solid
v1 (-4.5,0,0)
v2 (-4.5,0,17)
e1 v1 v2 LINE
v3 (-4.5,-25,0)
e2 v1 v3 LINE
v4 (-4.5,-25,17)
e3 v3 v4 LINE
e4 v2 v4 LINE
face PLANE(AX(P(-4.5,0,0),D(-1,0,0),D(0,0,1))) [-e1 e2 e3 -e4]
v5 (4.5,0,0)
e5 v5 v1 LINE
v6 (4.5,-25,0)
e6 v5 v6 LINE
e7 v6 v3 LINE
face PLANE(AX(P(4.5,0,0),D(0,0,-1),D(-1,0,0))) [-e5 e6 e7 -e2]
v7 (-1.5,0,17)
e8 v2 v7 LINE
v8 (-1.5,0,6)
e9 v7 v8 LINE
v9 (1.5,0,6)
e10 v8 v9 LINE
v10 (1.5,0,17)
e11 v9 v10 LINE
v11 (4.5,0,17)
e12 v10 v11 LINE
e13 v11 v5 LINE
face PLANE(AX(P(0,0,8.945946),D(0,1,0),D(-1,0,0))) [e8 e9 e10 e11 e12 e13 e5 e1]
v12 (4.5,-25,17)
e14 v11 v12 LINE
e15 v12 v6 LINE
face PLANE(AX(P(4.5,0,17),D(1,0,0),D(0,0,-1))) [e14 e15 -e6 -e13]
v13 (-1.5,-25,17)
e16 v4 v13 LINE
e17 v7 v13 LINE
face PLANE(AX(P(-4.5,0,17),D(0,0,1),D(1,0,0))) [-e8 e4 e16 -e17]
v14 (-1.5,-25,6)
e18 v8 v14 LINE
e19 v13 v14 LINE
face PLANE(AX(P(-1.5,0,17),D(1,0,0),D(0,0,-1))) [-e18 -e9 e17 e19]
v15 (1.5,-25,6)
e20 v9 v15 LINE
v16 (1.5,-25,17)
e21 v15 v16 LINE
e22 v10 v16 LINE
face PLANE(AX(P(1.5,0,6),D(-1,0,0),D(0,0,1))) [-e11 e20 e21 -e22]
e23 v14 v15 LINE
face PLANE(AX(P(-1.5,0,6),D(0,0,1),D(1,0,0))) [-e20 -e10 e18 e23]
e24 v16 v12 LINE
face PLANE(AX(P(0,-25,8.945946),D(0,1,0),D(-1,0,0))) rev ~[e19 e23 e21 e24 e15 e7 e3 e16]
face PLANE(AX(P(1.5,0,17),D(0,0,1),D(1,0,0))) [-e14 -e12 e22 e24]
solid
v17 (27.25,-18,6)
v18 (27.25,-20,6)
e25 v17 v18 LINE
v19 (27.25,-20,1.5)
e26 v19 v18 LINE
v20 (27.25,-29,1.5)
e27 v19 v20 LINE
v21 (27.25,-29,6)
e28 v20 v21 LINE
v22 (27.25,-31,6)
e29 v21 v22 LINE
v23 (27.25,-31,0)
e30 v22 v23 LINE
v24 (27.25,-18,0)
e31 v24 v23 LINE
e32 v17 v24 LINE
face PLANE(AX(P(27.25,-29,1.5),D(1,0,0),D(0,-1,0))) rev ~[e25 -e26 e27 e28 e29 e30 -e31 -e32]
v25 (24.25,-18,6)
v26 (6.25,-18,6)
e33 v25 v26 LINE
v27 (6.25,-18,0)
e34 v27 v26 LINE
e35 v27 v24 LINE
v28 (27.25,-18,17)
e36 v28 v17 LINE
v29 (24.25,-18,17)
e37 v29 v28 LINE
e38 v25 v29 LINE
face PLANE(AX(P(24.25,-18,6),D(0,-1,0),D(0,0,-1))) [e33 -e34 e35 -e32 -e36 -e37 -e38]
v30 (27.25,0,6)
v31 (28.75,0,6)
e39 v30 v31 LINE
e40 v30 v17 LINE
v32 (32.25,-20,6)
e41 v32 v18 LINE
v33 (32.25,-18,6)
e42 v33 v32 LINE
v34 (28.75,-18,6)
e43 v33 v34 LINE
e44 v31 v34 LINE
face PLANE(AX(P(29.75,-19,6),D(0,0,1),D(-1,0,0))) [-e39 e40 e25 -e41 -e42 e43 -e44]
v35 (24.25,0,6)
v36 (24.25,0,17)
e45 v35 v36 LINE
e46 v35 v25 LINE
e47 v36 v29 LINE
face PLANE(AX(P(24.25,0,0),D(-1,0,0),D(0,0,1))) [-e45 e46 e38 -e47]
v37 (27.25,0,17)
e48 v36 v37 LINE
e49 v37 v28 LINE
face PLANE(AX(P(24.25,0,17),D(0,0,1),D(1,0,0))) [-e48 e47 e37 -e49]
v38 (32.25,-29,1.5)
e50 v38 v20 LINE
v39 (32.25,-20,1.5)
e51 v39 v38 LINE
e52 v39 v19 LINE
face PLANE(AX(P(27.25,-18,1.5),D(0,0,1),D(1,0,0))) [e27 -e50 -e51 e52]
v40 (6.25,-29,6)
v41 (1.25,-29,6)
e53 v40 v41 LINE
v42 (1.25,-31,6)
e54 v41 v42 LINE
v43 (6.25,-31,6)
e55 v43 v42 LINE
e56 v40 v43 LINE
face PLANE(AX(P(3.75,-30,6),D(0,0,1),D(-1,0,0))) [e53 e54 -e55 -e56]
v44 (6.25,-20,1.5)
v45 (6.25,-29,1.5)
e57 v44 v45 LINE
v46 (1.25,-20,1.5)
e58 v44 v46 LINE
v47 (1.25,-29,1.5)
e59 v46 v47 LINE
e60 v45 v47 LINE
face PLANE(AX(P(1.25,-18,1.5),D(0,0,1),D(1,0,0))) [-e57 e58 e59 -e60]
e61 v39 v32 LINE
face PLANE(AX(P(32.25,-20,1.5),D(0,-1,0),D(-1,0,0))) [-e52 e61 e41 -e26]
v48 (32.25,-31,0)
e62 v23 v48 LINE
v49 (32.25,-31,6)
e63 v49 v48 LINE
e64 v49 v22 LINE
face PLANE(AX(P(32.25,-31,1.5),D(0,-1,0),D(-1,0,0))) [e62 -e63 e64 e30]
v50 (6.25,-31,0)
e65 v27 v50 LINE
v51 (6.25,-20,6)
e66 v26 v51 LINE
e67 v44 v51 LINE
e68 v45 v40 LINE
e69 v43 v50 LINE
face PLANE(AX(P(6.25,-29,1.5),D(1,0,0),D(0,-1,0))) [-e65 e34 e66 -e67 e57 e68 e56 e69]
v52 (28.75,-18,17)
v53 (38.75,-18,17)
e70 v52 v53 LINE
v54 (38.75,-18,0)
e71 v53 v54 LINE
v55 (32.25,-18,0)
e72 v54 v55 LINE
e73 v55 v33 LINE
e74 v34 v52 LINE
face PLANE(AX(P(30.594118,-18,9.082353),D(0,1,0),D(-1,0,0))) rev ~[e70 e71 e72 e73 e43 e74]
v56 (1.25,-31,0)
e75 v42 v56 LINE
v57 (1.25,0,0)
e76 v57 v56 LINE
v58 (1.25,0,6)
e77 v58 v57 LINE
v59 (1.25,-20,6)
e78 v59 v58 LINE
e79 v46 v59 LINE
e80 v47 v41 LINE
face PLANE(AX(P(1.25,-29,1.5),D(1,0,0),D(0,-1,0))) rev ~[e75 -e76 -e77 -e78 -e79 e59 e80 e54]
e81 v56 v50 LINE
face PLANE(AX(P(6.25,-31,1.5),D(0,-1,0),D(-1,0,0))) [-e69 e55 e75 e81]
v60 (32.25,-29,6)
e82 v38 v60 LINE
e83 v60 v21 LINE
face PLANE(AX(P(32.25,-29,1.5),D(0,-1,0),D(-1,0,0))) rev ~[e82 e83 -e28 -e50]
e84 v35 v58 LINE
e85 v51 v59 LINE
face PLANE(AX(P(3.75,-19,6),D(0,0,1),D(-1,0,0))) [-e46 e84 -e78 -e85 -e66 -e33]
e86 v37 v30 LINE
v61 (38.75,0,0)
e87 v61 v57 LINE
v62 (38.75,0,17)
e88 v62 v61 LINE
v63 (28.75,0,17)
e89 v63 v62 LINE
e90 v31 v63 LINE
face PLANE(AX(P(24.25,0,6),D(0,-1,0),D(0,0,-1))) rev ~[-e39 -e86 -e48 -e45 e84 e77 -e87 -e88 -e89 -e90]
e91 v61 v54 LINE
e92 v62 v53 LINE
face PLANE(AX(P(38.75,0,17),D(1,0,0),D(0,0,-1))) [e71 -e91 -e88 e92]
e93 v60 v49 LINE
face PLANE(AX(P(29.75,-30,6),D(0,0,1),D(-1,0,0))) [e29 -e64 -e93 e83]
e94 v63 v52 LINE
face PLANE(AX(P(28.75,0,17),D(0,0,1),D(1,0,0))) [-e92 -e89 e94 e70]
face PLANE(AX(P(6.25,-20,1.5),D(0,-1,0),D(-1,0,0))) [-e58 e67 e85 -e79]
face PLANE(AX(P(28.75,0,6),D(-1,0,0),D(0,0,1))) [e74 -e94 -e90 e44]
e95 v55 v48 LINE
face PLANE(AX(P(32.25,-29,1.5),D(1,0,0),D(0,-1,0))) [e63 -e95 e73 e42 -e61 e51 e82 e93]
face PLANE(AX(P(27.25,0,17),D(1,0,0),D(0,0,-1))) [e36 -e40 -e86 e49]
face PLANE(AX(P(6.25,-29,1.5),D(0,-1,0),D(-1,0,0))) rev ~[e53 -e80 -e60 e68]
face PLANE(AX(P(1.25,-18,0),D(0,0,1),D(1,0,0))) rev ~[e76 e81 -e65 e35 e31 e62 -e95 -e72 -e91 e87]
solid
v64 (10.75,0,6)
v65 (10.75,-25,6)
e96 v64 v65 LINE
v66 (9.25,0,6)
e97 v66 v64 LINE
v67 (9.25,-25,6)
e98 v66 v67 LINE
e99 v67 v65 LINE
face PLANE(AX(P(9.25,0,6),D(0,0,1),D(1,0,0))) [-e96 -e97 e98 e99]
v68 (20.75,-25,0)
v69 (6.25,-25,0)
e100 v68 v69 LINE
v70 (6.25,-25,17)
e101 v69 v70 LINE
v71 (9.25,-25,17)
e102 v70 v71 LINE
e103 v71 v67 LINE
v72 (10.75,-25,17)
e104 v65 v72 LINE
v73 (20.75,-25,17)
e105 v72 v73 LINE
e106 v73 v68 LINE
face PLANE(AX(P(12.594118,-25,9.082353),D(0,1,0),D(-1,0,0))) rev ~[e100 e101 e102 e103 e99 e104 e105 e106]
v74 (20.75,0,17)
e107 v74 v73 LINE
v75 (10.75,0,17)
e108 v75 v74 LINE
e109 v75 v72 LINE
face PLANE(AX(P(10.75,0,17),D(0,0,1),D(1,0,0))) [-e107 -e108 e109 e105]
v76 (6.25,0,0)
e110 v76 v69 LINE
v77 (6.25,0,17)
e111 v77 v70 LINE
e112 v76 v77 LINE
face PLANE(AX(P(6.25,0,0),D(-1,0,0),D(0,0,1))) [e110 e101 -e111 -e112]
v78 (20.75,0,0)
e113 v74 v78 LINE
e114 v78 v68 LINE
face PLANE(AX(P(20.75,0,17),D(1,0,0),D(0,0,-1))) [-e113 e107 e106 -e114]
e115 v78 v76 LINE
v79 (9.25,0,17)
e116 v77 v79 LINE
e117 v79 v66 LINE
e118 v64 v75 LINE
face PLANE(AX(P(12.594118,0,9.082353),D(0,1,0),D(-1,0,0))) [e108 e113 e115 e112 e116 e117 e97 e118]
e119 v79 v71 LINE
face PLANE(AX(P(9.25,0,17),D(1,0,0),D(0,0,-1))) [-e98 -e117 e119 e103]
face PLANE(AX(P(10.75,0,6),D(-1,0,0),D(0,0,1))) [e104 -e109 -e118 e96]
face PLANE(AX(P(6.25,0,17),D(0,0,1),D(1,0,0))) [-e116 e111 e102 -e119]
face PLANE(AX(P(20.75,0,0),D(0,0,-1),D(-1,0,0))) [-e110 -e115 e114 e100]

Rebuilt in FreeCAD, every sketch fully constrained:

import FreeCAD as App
import Part
import Sketcher

V = App.Vector

doc = App.newDocument("Part")
body = doc.addObject("PartDesign::Body", "Body")

sketch1 = body.newObject("Sketcher::SketchObject", "Sketch")
sketch1.AttachmentSupport = (doc.getObject("XZ_Plane"), [""])
sketch1.MapMode = "FlatFace"
sketch1.addGeometry(Part.LineSegment(V(-1.5, 17, 0), V(-4.5, 17, 0)), False)
sketch1.addGeometry(Part.LineSegment(V(-4.5, 17, 0), V(-4.5, 0, 0)), False)
sketch1.addGeometry(Part.LineSegment(V(-4.5, 0, 0), V(4.5, 0, 0)), False)
sketch1.addGeometry(Part.LineSegment(V(4.5, 0, 0), V(4.5, 17, 0)), False)
sketch1.addGeometry(Part.LineSegment(V(4.5, 17, 0), V(1.5, 17, 0)), False)
sketch1.addGeometry(Part.LineSegment(V(1.5, 17, 0), V(1.5, 6, 0)), False)
sketch1.addGeometry(Part.LineSegment(V(1.5, 6, 0), V(-1.5, 6, 0)), False)
sketch1.addGeometry(Part.LineSegment(V(-1.5, 6, 0), V(-1.5, 17, 0)), False)
sketch1.addConstraint(Sketcher.Constraint("Coincident", 0, 2, 1, 1))
sketch1.addConstraint(Sketcher.Constraint("Coincident", 1, 2, 2, 1))
sketch1.addConstraint(Sketcher.Constraint("Coincident", 2, 2, 3, 1))
sketch1.addConstraint(Sketcher.Constraint("Coincident", 3, 2, 4, 1))
sketch1.addConstraint(Sketcher.Constraint("Coincident", 4, 2, 5, 1))
sketch1.addConstraint(Sketcher.Constraint("Coincident", 5, 2, 6, 1))
sketch1.addConstraint(Sketcher.Constraint("Coincident", 6, 2, 7, 1))
sketch1.addConstraint(Sketcher.Constraint("Coincident", 7, 2, 0, 1))
sketch1.addConstraint(Sketcher.Constraint("Horizontal", 0))
sketch1.addConstraint(Sketcher.Constraint("Vertical", 1))
sketch1.addConstraint(Sketcher.Constraint("Horizontal", 2))
sketch1.addConstraint(Sketcher.Constraint("Vertical", 3))
sketch1.addConstraint(Sketcher.Constraint("Horizontal", 4))
sketch1.addConstraint(Sketcher.Constraint("Vertical", 5))
sketch1.addConstraint(Sketcher.Constraint("Horizontal", 6))
sketch1.addConstraint(Sketcher.Constraint("Vertical", 7))
sketch1.addConstraint(Sketcher.Constraint("Symmetric", 1, 2, 2, 2, -1, 1))
sketch1.addConstraint(Sketcher.Constraint("Symmetric", 4, 2, 7, 2, -2))
sketch1.addConstraint(Sketcher.Constraint("Equal", 4, 6))
sketch1.addConstraint(Sketcher.Constraint("DistanceX", 0, 2, 0, 1, 3.0))
sketch1.addConstraint(Sketcher.Constraint("DistanceY", 1, 2, 1, 1, 17.0))
sketch1.addConstraint(Sketcher.Constraint("DistanceY", 5, 2, 5, 1, 11.0))
pad1 = body.newObject("PartDesign::Pad", "Pad")
pad1.Profile = sketch1
pad1.Length = 25
body2 = doc.addObject("PartDesign::Body", "Body001")

sketch2 = body2.newObject("Sketcher::SketchObject", "Sketch001")
sketch2.AttachmentSupport = (doc.getObject("XZ_Plane001"), [""])
sketch2.MapMode = "FlatFace"
sketch2.addGeometry(Part.LineSegment(V(9.2, 17, 0), V(6.2, 17, 0)), False)
sketch2.addGeometry(Part.LineSegment(V(6.2, 17, 0), V(6.2, 0, 0)), False)
sketch2.addGeometry(Part.LineSegment(V(6.2, 0, 0), V(20.8, 0, 0)), False)
sketch2.addGeometry(Part.LineSegment(V(20.8, 0, 0), V(20.8, 17, 0)), False)
sketch2.addGeometry(Part.LineSegment(V(20.8, 17, 0), V(10.8, 17, 0)), False)
sketch2.addGeometry(Part.LineSegment(V(10.8, 17, 0), V(10.8, 6, 0)), False)
sketch2.addGeometry(Part.LineSegment(V(10.8, 6, 0), V(9.2, 6, 0)), False)
sketch2.addGeometry(Part.LineSegment(V(9.2, 6, 0), V(9.2, 17, 0)), False)
sketch2.addConstraint(Sketcher.Constraint("Coincident", 0, 2, 1, 1))
sketch2.addConstraint(Sketcher.Constraint("Coincident", 1, 2, 2, 1))
sketch2.addConstraint(Sketcher.Constraint("Coincident", 2, 2, 3, 1))
sketch2.addConstraint(Sketcher.Constraint("Coincident", 3, 2, 4, 1))
sketch2.addConstraint(Sketcher.Constraint("Coincident", 4, 2, 5, 1))
sketch2.addConstraint(Sketcher.Constraint("Coincident", 5, 2, 6, 1))
sketch2.addConstraint(Sketcher.Constraint("Coincident", 6, 2, 7, 1))
sketch2.addConstraint(Sketcher.Constraint("Coincident", 7, 2, 0, 1))
sketch2.addConstraint(Sketcher.Constraint("Horizontal", 0))
sketch2.addConstraint(Sketcher.Constraint("Vertical", 1))
sketch2.addConstraint(Sketcher.Constraint("Horizontal", 2))
sketch2.addConstraint(Sketcher.Constraint("Vertical", 3))
sketch2.addConstraint(Sketcher.Constraint("Horizontal", 4))
sketch2.addConstraint(Sketcher.Constraint("Vertical", 5))
sketch2.addConstraint(Sketcher.Constraint("Horizontal", 6))
sketch2.addConstraint(Sketcher.Constraint("Vertical", 7))
sketch2.addConstraint(Sketcher.Constraint("PointOnObject", 1, 2, -1))
sketch2.addConstraint(Sketcher.Constraint("Horizontal", 0, 2, 3, 2))
sketch2.addConstraint(Sketcher.Constraint("DistanceX", 0, 2, 0, 1, 3.0))
sketch2.addConstraint(Sketcher.Constraint("DistanceX", 4, 2, 4, 1, 10.0))
sketch2.addConstraint(Sketcher.Constraint("DistanceY", 1, 2, 1, 1, 17.0))
sketch2.addConstraint(Sketcher.Constraint("DistanceY", 5, 2, 5, 1, 11.0))
sketch2.addConstraint(Sketcher.Constraint("DistanceX", 2, 1, 2, 2, 14.5))
sketch2.addConstraint(Sketcher.Constraint("DistanceX", -1, 1, 0, 2, 6.25))
pad2 = body2.newObject("PartDesign::Pad", "Pad001")
pad2.Profile = sketch2
pad2.Length = 25
body3 = doc.addObject("PartDesign::Body", "Body002")

sketch3 = body3.newObject("Sketcher::SketchObject", "Sketch002")
sketch3.AttachmentSupport = (doc.getObject("XZ_Plane002"), [""])
sketch3.MapMode = "FlatFace"
sketch3.addGeometry(Part.LineSegment(V(27.2, 17, 0), V(24.2, 17, 0)), False)
sketch3.addGeometry(Part.LineSegment(V(24.2, 17, 0), V(24.2, 0, 0)), False)
sketch3.addGeometry(Part.LineSegment(V(24.2, 0, 0), V(38.8, 0, 0)), False)
sketch3.addGeometry(Part.LineSegment(V(38.8, 0, 0), V(38.8, 17, 0)), False)
sketch3.addGeometry(Part.LineSegment(V(38.8, 17, 0), V(28.8, 17, 0)), False)
sketch3.addGeometry(Part.LineSegment(V(28.8, 17, 0), V(28.8, 6, 0)), False)
sketch3.addGeometry(Part.LineSegment(V(28.8, 6, 0), V(27.2, 6, 0)), False)
sketch3.addGeometry(Part.LineSegment(V(27.2, 6, 0), V(27.2, 17, 0)), False)
sketch3.addConstraint(Sketcher.Constraint("Coincident", 0, 2, 1, 1))
sketch3.addConstraint(Sketcher.Constraint("Coincident", 1, 2, 2, 1))
sketch3.addConstraint(Sketcher.Constraint("Coincident", 2, 2, 3, 1))
sketch3.addConstraint(Sketcher.Constraint("Coincident", 3, 2, 4, 1))
sketch3.addConstraint(Sketcher.Constraint("Coincident", 4, 2, 5, 1))
sketch3.addConstraint(Sketcher.Constraint("Coincident", 5, 2, 6, 1))
sketch3.addConstraint(Sketcher.Constraint("Coincident", 6, 2, 7, 1))
sketch3.addConstraint(Sketcher.Constraint("Coincident", 7, 2, 0, 1))
sketch3.addConstraint(Sketcher.Constraint("Horizontal", 0))
sketch3.addConstraint(Sketcher.Constraint("Vertical", 1))
sketch3.addConstraint(Sketcher.Constraint("Horizontal", 2))
sketch3.addConstraint(Sketcher.Constraint("Vertical", 3))
sketch3.addConstraint(Sketcher.Constraint("Horizontal", 4))
sketch3.addConstraint(Sketcher.Constraint("Vertical", 5))
sketch3.addConstraint(Sketcher.Constraint("Horizontal", 6))
sketch3.addConstraint(Sketcher.Constraint("Vertical", 7))
sketch3.addConstraint(Sketcher.Constraint("PointOnObject", 1, 2, -1))
sketch3.addConstraint(Sketcher.Constraint("Horizontal", 0, 2, 3, 2))
sketch3.addConstraint(Sketcher.Constraint("DistanceX", 0, 2, 0, 1, 3.0))
sketch3.addConstraint(Sketcher.Constraint("DistanceX", 4, 2, 4, 1, 10.0))
sketch3.addConstraint(Sketcher.Constraint("DistanceY", 1, 2, 1, 1, 17.0))
sketch3.addConstraint(Sketcher.Constraint("DistanceY", 5, 2, 5, 1, 11.0))
sketch3.addConstraint(Sketcher.Constraint("DistanceX", 2, 1, 2, 2, 14.5))
sketch3.addConstraint(Sketcher.Constraint("DistanceX", -1, 1, 0, 2, 24.25))
pad3 = body3.newObject("PartDesign::Pad", "Pad002")
pad3.Profile = sketch3
pad3.Length = 18

sketch4 = body3.newObject("Sketcher::SketchObject", "Sketch003")
sketch4.AttachmentSupport = (doc.getObject("XZ_Plane002"), [""])
sketch4.MapMode = "FlatFace"
sketch4.AttachmentOffset = App.Placement(V(0, 0, 18), App.Rotation())
sketch4.addGeometry(Part.LineSegment(V(27.2, 1.5, 0), V(27.2, 0, 0)), False)
sketch4.addGeometry(Part.LineSegment(V(27.2, 0, 0), V(32.2, 0, 0)), False)
sketch4.addGeometry(Part.LineSegment(V(32.2, 0, 0), V(32.2, 1.5, 0)), False)
sketch4.addGeometry(Part.LineSegment(V(32.2, 1.5, 0), V(27.2, 1.5, 0)), False)
sketch4.addConstraint(Sketcher.Constraint("Coincident", 0, 2, 1, 1))
sketch4.addConstraint(Sketcher.Constraint("Coincident", 1, 2, 2, 1))
sketch4.addConstraint(Sketcher.Constraint("Coincident", 2, 2, 3, 1))
sketch4.addConstraint(Sketcher.Constraint("Coincident", 3, 2, 0, 1))
sketch4.addConstraint(Sketcher.Constraint("Vertical", 0))
sketch4.addConstraint(Sketcher.Constraint("Horizontal", 1))
sketch4.addConstraint(Sketcher.Constraint("Vertical", 2))
sketch4.addConstraint(Sketcher.Constraint("Horizontal", 3))
sketch4.addConstraint(Sketcher.Constraint("PointOnObject", 0, 2, -1))
sketch4.addConstraint(Sketcher.Constraint("DistanceX", 1, 1, 1, 2, 5.0))
sketch4.addConstraint(Sketcher.Constraint("DistanceY", 0, 2, 0, 1, 1.5))
sketch4.addConstraint(Sketcher.Constraint("DistanceX", -1, 1, 0, 2, 27.25))
pad4 = body3.newObject("PartDesign::Pad", "Pad003")
pad4.Profile = sketch4
pad4.Length = 13

sketch5 = body3.newObject("Sketcher::SketchObject", "Sketch004")
sketch5.AttachmentSupport = (doc.getObject("XY_Plane002"), [""])
sketch5.MapMode = "FlatFace"
sketch5.AttachmentOffset = App.Placement(V(0, 0, 1.5), App.Rotation())
sketch5.addGeometry(Part.LineSegment(V(32.2, -31, 0), V(32.2, -29, 0)), False)
sketch5.addGeometry(Part.LineSegment(V(32.2, -29, 0), V(27.2, -29, 0)), False)
sketch5.addGeometry(Part.LineSegment(V(27.2, -29, 0), V(27.2, -31, 0)), False)
sketch5.addGeometry(Part.LineSegment(V(27.2, -31, 0), V(32.2, -31, 0)), False)
sketch5.addGeometry(Part.LineSegment(V(32.2, -20, 0), V(32.2, -18, 0)), False)
sketch5.addGeometry(Part.LineSegment(V(32.2, -18, 0), V(27.2, -18, 0)), False)
sketch5.addGeometry(Part.LineSegment(V(27.2, -18, 0), V(27.2, -20, 0)), False)
sketch5.addGeometry(Part.LineSegment(V(27.2, -20, 0), V(32.2, -20, 0)), False)
sketch5.addConstraint(Sketcher.Constraint("Coincident", 0, 2, 1, 1))
sketch5.addConstraint(Sketcher.Constraint("Coincident", 1, 2, 2, 1))
sketch5.addConstraint(Sketcher.Constraint("Coincident", 2, 2, 3, 1))
sketch5.addConstraint(Sketcher.Constraint("Coincident", 3, 2, 0, 1))
sketch5.addConstraint(Sketcher.Constraint("Coincident", 4, 2, 5, 1))
sketch5.addConstraint(Sketcher.Constraint("Coincident", 5, 2, 6, 1))
sketch5.addConstraint(Sketcher.Constraint("Coincident", 6, 2, 7, 1))
sketch5.addConstraint(Sketcher.Constraint("Coincident", 7, 2, 4, 1))
sketch5.addConstraint(Sketcher.Constraint("Vertical", 0))
sketch5.addConstraint(Sketcher.Constraint("Horizontal", 1))
sketch5.addConstraint(Sketcher.Constraint("Vertical", 2))
sketch5.addConstraint(Sketcher.Constraint("Horizontal", 3))
sketch5.addConstraint(Sketcher.Constraint("Vertical", 4))
sketch5.addConstraint(Sketcher.Constraint("Horizontal", 5))
sketch5.addConstraint(Sketcher.Constraint("Vertical", 6))
sketch5.addConstraint(Sketcher.Constraint("Horizontal", 7))
sketch5.addConstraint(Sketcher.Constraint("Vertical", 3, 2, 4, 2))
sketch5.addConstraint(Sketcher.Constraint("Vertical", 2, 2, 5, 2))
sketch5.addConstraint(Sketcher.Constraint("Equal", 2, 4))
sketch5.addConstraint(Sketcher.Constraint("DistanceX", 1, 2, 1, 1, 5.0))
sketch5.addConstraint(Sketcher.Constraint("DistanceY", 0, 1, 0, 2, 2.0))
sketch5.addConstraint(Sketcher.Constraint("DistanceY", 0, 2, -1, 1, 29.0))
sketch5.addConstraint(Sketcher.Constraint("DistanceY", 4, 2, -1, 1, 18.0))
sketch5.addConstraint(Sketcher.Constraint("DistanceX", -1, 1, 0, 2, 32.25))
pad5 = body3.newObject("PartDesign::Pad", "Pad004")
pad5.Profile = sketch5
pad5.Length = 4.5

sketch6 = body3.newObject("Sketcher::SketchObject", "Sketch005")
sketch6.AttachmentSupport = (doc.getObject("YZ_Plane002"), [""])
sketch6.MapMode = "FlatFace"
sketch6.AttachmentOffset = App.Placement(V(0, 0, 24.25), App.Rotation())
sketch6.addGeometry(Part.LineSegment(V(-18, 6, 0), V(0, 6, 0)), False)
sketch6.addGeometry(Part.LineSegment(V(0, 6, 0), V(0, 0, 0)), False)
sketch6.addGeometry(Part.LineSegment(V(0, 0, 0), V(-18, 0, 0)), False)
sketch6.addGeometry(Part.LineSegment(V(-18, 0, 0), V(-18, 6, 0)), False)
sketch6.addConstraint(Sketcher.Constraint("Coincident", 0, 2, 1, 1))
sketch6.addConstraint(Sketcher.Constraint("Coincident", 1, 2, 2, 1))
sketch6.addConstraint(Sketcher.Constraint("Coincident", 2, 2, 3, 1))
sketch6.addConstraint(Sketcher.Constraint("Coincident", 3, 2, 0, 1))
sketch6.addConstraint(Sketcher.Constraint("Horizontal", 0))
sketch6.addConstraint(Sketcher.Constraint("Vertical", 1))
sketch6.addConstraint(Sketcher.Constraint("Horizontal", 2))
sketch6.addConstraint(Sketcher.Constraint("Vertical", 3))
sketch6.addConstraint(Sketcher.Constraint("Coincident", 1, 2, -1, 1))
sketch6.addConstraint(Sketcher.Constraint("DistanceX", 0, 1, 0, 2, 18.0))
sketch6.addConstraint(Sketcher.Constraint("DistanceY", 1, 2, 1, 1, 6.0))
pad6 = body3.newObject("PartDesign::Pad", "Pad005")
pad6.Profile = sketch6
pad6.Length = 23
pad6.Reversed = True

sketch7 = body3.newObject("Sketcher::SketchObject", "Sketch006")
sketch7.AttachmentSupport = (doc.getObject("XZ_Plane002"), [""])
sketch7.MapMode = "FlatFace"
sketch7.AttachmentOffset = App.Placement(V(0, 0, 18), App.Rotation())
sketch7.addGeometry(Part.LineSegment(V(1.2, 1.5, 0), V(1.2, 0, 0)), False)
sketch7.addGeometry(Part.LineSegment(V(1.2, 0, 0), V(6.2, 0, 0)), False)
sketch7.addGeometry(Part.LineSegment(V(6.2, 0, 0), V(6.2, 1.5, 0)), False)
sketch7.addGeometry(Part.LineSegment(V(6.2, 1.5, 0), V(1.2, 1.5, 0)), False)
sketch7.addConstraint(Sketcher.Constraint("Coincident", 0, 2, 1, 1))
sketch7.addConstraint(Sketcher.Constraint("Coincident", 1, 2, 2, 1))
sketch7.addConstraint(Sketcher.Constraint("Coincident", 2, 2, 3, 1))
sketch7.addConstraint(Sketcher.Constraint("Coincident", 3, 2, 0, 1))
sketch7.addConstraint(Sketcher.Constraint("Vertical", 0))
sketch7.addConstraint(Sketcher.Constraint("Horizontal", 1))
sketch7.addConstraint(Sketcher.Constraint("Vertical", 2))
sketch7.addConstraint(Sketcher.Constraint("Horizontal", 3))
sketch7.addConstraint(Sketcher.Constraint("PointOnObject", 0, 2, -1))
sketch7.addConstraint(Sketcher.Constraint("DistanceX", 1, 1, 1, 2, 5.0))
sketch7.addConstraint(Sketcher.Constraint("DistanceY", 0, 2, 0, 1, 1.5))
sketch7.addConstraint(Sketcher.Constraint("DistanceX", -1, 1, 0, 2, 1.25))
pad7 = body3.newObject("PartDesign::Pad", "Pad006")
pad7.Profile = sketch7
pad7.Length = 13

sketch8 = body3.newObject("Sketcher::SketchObject", "Sketch007")
sketch8.AttachmentSupport = (doc.getObject("XY_Plane002"), [""])
sketch8.MapMode = "FlatFace"
sketch8.AttachmentOffset = App.Placement(V(0, 0, 1.5), App.Rotation())
sketch8.addGeometry(Part.LineSegment(V(6.2, -31, 0), V(6.2, -29, 0)), False)
sketch8.addGeometry(Part.LineSegment(V(6.2, -29, 0), V(1.2, -29, 0)), False)
sketch8.addGeometry(Part.LineSegment(V(1.2, -29, 0), V(1.2, -31, 0)), False)
sketch8.addGeometry(Part.LineSegment(V(1.2, -31, 0), V(6.2, -31, 0)), False)
sketch8.addGeometry(Part.LineSegment(V(6.2, -20, 0), V(6.2, -18, 0)), False)
sketch8.addGeometry(Part.LineSegment(V(6.2, -18, 0), V(1.2, -18, 0)), False)
sketch8.addGeometry(Part.LineSegment(V(1.2, -18, 0), V(1.2, -20, 0)), False)
sketch8.addGeometry(Part.LineSegment(V(1.2, -20, 0), V(6.2, -20, 0)), False)
sketch8.addConstraint(Sketcher.Constraint("Coincident", 0, 2, 1, 1))
sketch8.addConstraint(Sketcher.Constraint("Coincident", 1, 2, 2, 1))
sketch8.addConstraint(Sketcher.Constraint("Coincident", 2, 2, 3, 1))
sketch8.addConstraint(Sketcher.Constraint("Coincident", 3, 2, 0, 1))
sketch8.addConstraint(Sketcher.Constraint("Coincident", 4, 2, 5, 1))
sketch8.addConstraint(Sketcher.Constraint("Coincident", 5, 2, 6, 1))
sketch8.addConstraint(Sketcher.Constraint("Coincident", 6, 2, 7, 1))
sketch8.addConstraint(Sketcher.Constraint("Coincident", 7, 2, 4, 1))
sketch8.addConstraint(Sketcher.Constraint("Vertical", 0))
sketch8.addConstraint(Sketcher.Constraint("Horizontal", 1))
sketch8.addConstraint(Sketcher.Constraint("Vertical", 2))
sketch8.addConstraint(Sketcher.Constraint("Horizontal", 3))
sketch8.addConstraint(Sketcher.Constraint("Vertical", 4))
sketch8.addConstraint(Sketcher.Constraint("Horizontal", 5))
sketch8.addConstraint(Sketcher.Constraint("Vertical", 6))
sketch8.addConstraint(Sketcher.Constraint("Horizontal", 7))
sketch8.addConstraint(Sketcher.Constraint("Vertical", 3, 2, 4, 2))
sketch8.addConstraint(Sketcher.Constraint("Vertical", 2, 2, 5, 2))
sketch8.addConstraint(Sketcher.Constraint("Equal", 2, 4))
sketch8.addConstraint(Sketcher.Constraint("DistanceX", 1, 2, 1, 1, 5.0))
sketch8.addConstraint(Sketcher.Constraint("DistanceY", 0, 1, 0, 2, 2.0))
sketch8.addConstraint(Sketcher.Constraint("DistanceY", 0, 2, -1, 1, 29.0))
sketch8.addConstraint(Sketcher.Constraint("DistanceY", 4, 2, -1, 1, 18.0))
sketch8.addConstraint(Sketcher.Constraint("DistanceX", -1, 1, 0, 2, 6.25))
pad8 = body3.newObject("PartDesign::Pad", "Pad007")
pad8.Profile = sketch8
pad8.Length = 4.5

doc.recompute()
